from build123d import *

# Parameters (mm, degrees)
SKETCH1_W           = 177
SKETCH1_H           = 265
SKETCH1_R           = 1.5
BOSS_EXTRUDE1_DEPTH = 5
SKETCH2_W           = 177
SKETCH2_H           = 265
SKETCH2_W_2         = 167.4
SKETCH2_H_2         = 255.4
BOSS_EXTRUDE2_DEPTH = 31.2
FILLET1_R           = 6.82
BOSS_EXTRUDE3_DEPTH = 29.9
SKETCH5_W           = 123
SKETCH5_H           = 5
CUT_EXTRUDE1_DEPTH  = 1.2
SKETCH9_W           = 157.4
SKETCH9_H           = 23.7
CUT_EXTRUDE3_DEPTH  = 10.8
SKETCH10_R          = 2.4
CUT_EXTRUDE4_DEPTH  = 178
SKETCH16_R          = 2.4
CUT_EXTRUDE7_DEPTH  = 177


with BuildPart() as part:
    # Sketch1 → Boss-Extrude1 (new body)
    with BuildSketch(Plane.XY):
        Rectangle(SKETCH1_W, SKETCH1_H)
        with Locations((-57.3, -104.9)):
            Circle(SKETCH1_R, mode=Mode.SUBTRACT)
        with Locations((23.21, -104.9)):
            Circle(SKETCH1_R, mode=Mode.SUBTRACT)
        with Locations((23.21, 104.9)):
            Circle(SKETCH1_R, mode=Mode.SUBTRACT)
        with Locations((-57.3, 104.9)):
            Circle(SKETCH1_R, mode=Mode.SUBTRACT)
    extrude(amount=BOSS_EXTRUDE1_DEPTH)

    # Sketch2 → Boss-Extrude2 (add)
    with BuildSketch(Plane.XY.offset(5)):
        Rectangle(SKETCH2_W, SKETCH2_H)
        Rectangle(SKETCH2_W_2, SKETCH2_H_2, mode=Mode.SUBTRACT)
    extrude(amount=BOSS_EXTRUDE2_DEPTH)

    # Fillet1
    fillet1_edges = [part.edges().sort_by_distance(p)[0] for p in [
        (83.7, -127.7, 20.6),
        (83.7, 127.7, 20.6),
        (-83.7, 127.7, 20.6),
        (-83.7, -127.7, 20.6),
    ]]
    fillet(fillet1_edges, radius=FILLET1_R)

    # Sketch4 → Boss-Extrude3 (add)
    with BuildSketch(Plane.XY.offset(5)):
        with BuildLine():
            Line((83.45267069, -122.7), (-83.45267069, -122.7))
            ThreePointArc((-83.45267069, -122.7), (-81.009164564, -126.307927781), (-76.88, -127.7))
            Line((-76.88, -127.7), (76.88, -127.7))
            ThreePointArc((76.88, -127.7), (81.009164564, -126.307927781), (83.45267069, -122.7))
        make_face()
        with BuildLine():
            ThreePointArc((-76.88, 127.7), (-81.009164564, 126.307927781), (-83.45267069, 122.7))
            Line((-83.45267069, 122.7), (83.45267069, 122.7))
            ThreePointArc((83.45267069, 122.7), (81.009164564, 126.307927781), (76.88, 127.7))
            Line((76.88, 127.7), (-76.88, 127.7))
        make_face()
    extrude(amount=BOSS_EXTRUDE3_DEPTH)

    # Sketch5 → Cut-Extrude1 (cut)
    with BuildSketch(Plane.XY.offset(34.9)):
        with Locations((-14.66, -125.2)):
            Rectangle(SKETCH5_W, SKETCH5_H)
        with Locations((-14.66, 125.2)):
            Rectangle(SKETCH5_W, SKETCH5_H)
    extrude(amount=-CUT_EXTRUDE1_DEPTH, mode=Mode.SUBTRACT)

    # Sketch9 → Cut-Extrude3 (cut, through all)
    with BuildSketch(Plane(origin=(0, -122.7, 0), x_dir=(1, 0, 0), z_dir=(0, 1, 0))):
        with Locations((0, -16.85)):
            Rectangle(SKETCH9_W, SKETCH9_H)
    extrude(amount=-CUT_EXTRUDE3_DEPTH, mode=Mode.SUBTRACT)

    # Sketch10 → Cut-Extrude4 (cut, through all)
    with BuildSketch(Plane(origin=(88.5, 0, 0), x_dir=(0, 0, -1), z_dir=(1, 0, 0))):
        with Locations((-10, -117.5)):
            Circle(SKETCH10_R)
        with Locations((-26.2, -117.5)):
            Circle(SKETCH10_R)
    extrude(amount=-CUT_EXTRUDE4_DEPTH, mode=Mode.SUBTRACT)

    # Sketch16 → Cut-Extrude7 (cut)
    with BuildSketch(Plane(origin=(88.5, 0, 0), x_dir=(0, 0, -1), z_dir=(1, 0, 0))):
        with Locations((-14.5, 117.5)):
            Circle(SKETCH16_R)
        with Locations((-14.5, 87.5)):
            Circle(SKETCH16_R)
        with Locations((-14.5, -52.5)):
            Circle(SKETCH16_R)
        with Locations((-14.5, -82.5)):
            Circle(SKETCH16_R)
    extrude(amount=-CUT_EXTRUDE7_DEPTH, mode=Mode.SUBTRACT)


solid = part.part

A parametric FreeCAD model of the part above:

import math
import FreeCAD as App
import Part
import Sketcher
from FreeCAD import Vector


def edges_at(feature, points):
    """Names of the edges that pass closest to the given points."""
    edges = feature.Shape.Edges
    near = lambda p: min(range(len(edges)), key=lambda i: edges[i].distToShape(Part.Vertex(*p))[0])
    return sorted({f"Edge{near(p) + 1}" for p in points})


def add_polygon(sketch, points):
    """Adds a closed chain of lines whose ends are joined by coincident constraints."""
    first, n = sketch.GeometryCount, len(points)
    for a, b in zip(points, points[1:] + points[:1]):
        sketch.addGeometry(Part.LineSegment(App.Vector(*a, 0), App.Vector(*b, 0)), False)
    for i in range(n):
        sketch.addConstraint(Sketcher.Constraint("Coincident", first + i, 2, first + (i + 1) % n, 1))

doc = App.newDocument("Part")
body = doc.addObject("PartDesign::Body", "Body")

# Sketch on XY plane
sketch1 = body.newObject("Sketcher::SketchObject", "Sketch")
sketch1.AttachmentSupport = (doc.getObject("XY_Plane"), [""])
sketch1.MapMode = "FlatFace"
add_polygon(sketch1, [(-88.5, 132.5), (-88.5, -132.5), (88.5, -132.5), (88.5, 132.5)])  # lines 0-3
sketch1.addGeometry(Part.Circle(Vector(-57.3, -104.9, 0), Vector(0, 0, 1), 1.5), False)  # 4
sketch1.addGeometry(Part.Circle(Vector(23.2, -104.9, 0), Vector(0, 0, 1), 1.5), False)  # 5
sketch1.addGeometry(Part.Circle(Vector(-57.3, 104.9, 0), Vector(0, 0, 1), 1.5), False)  # 6
sketch1.addGeometry(Part.Circle(Vector(23.2, 104.9, 0), Vector(0, 0, 1), 1.5), False)  # 7
sketch1.addConstraint([
    Sketcher.Constraint("Vertical", 0),
    Sketcher.Constraint("Horizontal", 1),
    Sketcher.Constraint("Vertical", 2),
    Sketcher.Constraint("Horizontal", 3),
    Sketcher.Constraint("Equal", 4, 5),
    Sketcher.Constraint("Equal", 5, 6),
    Sketcher.Constraint("Equal", 6, 7),
    Sketcher.Constraint("Symmetric", 0, 2, 2, 2, -1, 1),
    Sketcher.Constraint("Symmetric", 4, 3, 6, 3, -1),
    Sketcher.Constraint("Symmetric", 5, 3, 7, 3, -1),
    Sketcher.Constraint("Horizontal", 4, 3, 5, 3),
    Sketcher.Constraint("Diameter", 4, 3.0),
    Sketcher.Constraint("DistanceX", 1, 1, 1, 2, 177.0),
    Sketcher.Constraint("DistanceY", 0, 2, 0, 1, 265.0),
    Sketcher.Constraint("DistanceX", 4, 3, -1, 1, 57.3),
    Sketcher.Constraint("DistanceY", 4, 3, -1, 1, 104.9),
    Sketcher.Constraint("DistanceX", -1, 1, 5, 3, 23.21),
])
pad1 = body.newObject("PartDesign::Pad", "Pad")
pad1.Profile = sketch1
pad1.Length = 5

# Sketch on XY plane
sketch2 = body.newObject("Sketcher::SketchObject", "Sketch001")
sketch2.AttachmentSupport = (doc.getObject("XY_Plane"), [""])
sketch2.MapMode = "FlatFace"
sketch2.AttachmentOffset = App.Placement(Vector(0, 0, 5), App.Rotation())
add_polygon(sketch2, [(-88, 132), (-88, -132), (88, -132), (88, 132)])  # lines 0-3
add_polygon(sketch2, [(84, -128), (-84, -128), (-84, 128), (84, 128)])  # lines 4-7
sketch2.addConstraint([
    Sketcher.Constraint("Vertical", 0),
    Sketcher.Constraint("Horizontal", 1),
    Sketcher.Constraint("Vertical", 2),
    Sketcher.Constraint("Horizontal", 3),
    Sketcher.Constraint("Horizontal", 4),
    Sketcher.Constraint("Vertical", 5),
    Sketcher.Constraint("Horizontal", 6),
    Sketcher.Constraint("Vertical", 7),
    Sketcher.Constraint("Symmetric", 0, 2, 2, 2, -1, 1),
    Sketcher.Constraint("Symmetric", 4, 2, 6, 2, -1, 1),
    Sketcher.Constraint("DistanceX", 1, 1, 1, 2, 177.0),
    Sketcher.Constraint("DistanceY", 0, 2, 0, 1, 265.0),
    Sketcher.Constraint("DistanceX", 4, 2, 4, 1, 167.4),
    Sketcher.Constraint("DistanceY", 5, 1, 5, 2, 255.4),
])
pad2 = body.newObject("PartDesign::Pad", "Pad001")
pad2.Profile = sketch2
pad2.Length = 31.2
doc.recompute()

fillet = body.newObject("PartDesign::Fillet", "Fillet")
fillet.Base = (pad2, edges_at(pad2, [
    (83.7, -127.7, 20.6),
    (83.7, 127.7, 20.6),
    (-83.7, 127.7, 20.6),
    (-83.7, -127.7, 20.6),
]))
fillet.Radius = 6.82

# Sketch on XY plane
sketch3 = body.newObject("Sketcher::SketchObject", "Sketch002")
sketch3.AttachmentSupport = (doc.getObject("XY_Plane"), [""])
sketch3.MapMode = "FlatFace"
sketch3.AttachmentOffset = App.Placement(Vector(0, 0, 5), App.Rotation())
sketch3.addGeometry([
    Part.LineSegment(Vector(83, -123, 0), Vector(-83, -123, 0)),  # 0
    Part.ArcOfCircle(Part.Circle(Vector(-77, -121, 0), Vector(0, 0, 1), 7), math.radians(-165), math.radians(-90)),  # 1
    Part.LineSegment(Vector(-77, -128, 0), Vector(77, -128, 0)),  # 2
    Part.ArcOfCircle(Part.Circle(Vector(77, -121, 0), Vector(0, 0, 1), 7), math.radians(-90), math.radians(-15)),  # 3
    Part.ArcOfCircle(Part.Circle(Vector(-77, 121, 0), Vector(0, 0, 1), 7), math.radians(90), math.radians(165)),  # 4
    Part.LineSegment(Vector(-83, 123, 0), Vector(83, 123, 0)),  # 5
    Part.ArcOfCircle(Part.Circle(Vector(77, 121, 0), Vector(0, 0, 1), 7), math.radians(15), math.radians(90)),  # 6
    Part.LineSegment(Vector(77, 128, 0), Vector(-77, 128, 0)),  # 7
], False)
sketch3.addConstraint([
    Sketcher.Constraint("Coincident", 0, 2, 1, 1),
    Sketcher.Constraint("Tangent", 1, 2, 2, 1),
    Sketcher.Constraint("Tangent", 2, 2, 3, 1),
    Sketcher.Constraint("Coincident", 3, 2, 0, 1),
    Sketcher.Constraint("Coincident", 4, 2, 5, 1),
    Sketcher.Constraint("Coincident", 5, 2, 6, 1),
    Sketcher.Constraint("Tangent", 6, 2, 7, 1),
    Sketcher.Constraint("Tangent", 7, 2, 4, 1),
    Sketcher.Constraint("Horizontal", 0),
    Sketcher.Constraint("Horizontal", 2),
    Sketcher.Constraint("Horizontal", 5),
    Sketcher.Constraint("Horizontal", 7),
    Sketcher.Constraint("Equal", 1, 3),
    Sketcher.Constraint("Equal", 3, 4),
    Sketcher.Constraint("Equal", 4, 6),
    Sketcher.Constraint("Symmetric", 3, 3, 4, 3, -1, 1),
    Sketcher.Constraint("Symmetric", 0, 2, 5, 2, -1, 1),
    Sketcher.Constraint("Vertical", 1, 3, 4, 3),
    Sketcher.Constraint("Radius", 1, 6.82),
    Sketcher.Constraint("DistanceY", 1, 2, 0, 2, 5.0),
    Sketcher.Constraint("DistanceX", 2, 1, 2, 2, 153.76),
    Sketcher.Constraint("DistanceY", 0, 2, -1, 1, 122.7),
])
pad3 = body.newObject("PartDesign::Pad", "Pad002")
pad3.Profile = sketch3
pad3.Length = 29.9

# Sketch on XY plane
sketch4 = body.newObject("Sketcher::SketchObject", "Sketch003")
sketch4.AttachmentSupport = (doc.getObject("XY_Plane"), [""])
sketch4.MapMode = "FlatFace"
sketch4.AttachmentOffset = App.Placement(Vector(0, 0, 34.9), App.Rotation())
add_polygon(sketch4, [(-76, -123), (-76, -128), (47, -128), (47, -123)])  # lines 0-3
add_polygon(sketch4, [(-76, 128), (-76, 123), (47, 123), (47, 128)])  # lines 4-7
sketch4.addConstraint([
    Sketcher.Constraint("Vertical", 0),
    Sketcher.Constraint("Horizontal", 1),
    Sketcher.Constraint("Vertical", 2),
    Sketcher.Constraint("Horizontal", 3),
    Sketcher.Constraint("Vertical", 4),
    Sketcher.Constraint("Horizontal", 5),
    Sketcher.Constraint("Vertical", 6),
    Sketcher.Constraint("Horizontal", 7),
    Sketcher.Constraint("Symmetric", 3, 2, 4, 2, -1),
    Sketcher.Constraint("Symmetric", 1, 2, 6, 2, -1),
    Sketcher.Constraint("DistanceX", 1, 1, 1, 2, 123.0),
    Sketcher.Constraint("DistanceY", 0, 2, 0, 1, 5.0),
    Sketcher.Constraint("DistanceY", 0, 2, -1, 1, 127.7),
    Sketcher.Constraint("DistanceX", 0, 2, -1, 1, 76.16),
])
pocket1 = body.newObject("PartDesign::Pocket", "Pocket")
pocket1.Profile = sketch4
pocket1.Length = 1.2

# Sketch on XZ plane
sketch5 = body.newObject("Sketcher::SketchObject", "Sketch004")
sketch5.AttachmentSupport = (doc.getObject("XZ_Plane"), [""])
sketch5.MapMode = "FlatFace"
sketch5.AttachmentOffset = App.Placement(Vector(0, 0, 122.7), App.Rotation())
add_polygon(sketch5, [(-79, 5), (-79, 29), (79, 29), (79, 5)])  # lines 0-3
sketch5.addConstraint([
    Sketcher.Constraint("Vertical", 0),
    Sketcher.Constraint("Horizontal", 1),
    Sketcher.Constraint("Vertical", 2),
    Sketcher.Constraint("Horizontal", 3),
    Sketcher.Constraint("DistanceX", 1, 1, 1, 2, 157.4),
    Sketcher.Constraint("DistanceY", 0, 1, 0, 2, 23.7),
    Sketcher.Constraint("DistanceY", -1, 1, 2, 2, 5.0),
    Sketcher.Constraint("DistanceX", 0, 2, -1, 1, 78.7),
])
pocket2 = body.newObject("PartDesign::Pocket", "Pocket001")
pocket2.Profile = sketch5
pocket2.Type = "ThroughAll"
pocket2.Reversed = True

# Sketch on YZ plane
sketch6 = body.newObject("Sketcher::SketchObject", "Sketch005")
sketch6.AttachmentSupport = (doc.getObject("YZ_Plane"), [""])
sketch6.MapMode = "FlatFace"
sketch6.AttachmentOffset = App.Placement(Vector(0, 0, 88.5), App.Rotation())
sketch6.addGeometry([
    Part.Circle(Vector(-117.5, 10, 0), Vector(0, 0, 1), 2.4),
    Part.Circle(Vector(-117.5, 26.2, 0), Vector(0, 0, 1), 2.4),
], False)
sketch6.addConstraint([
    Sketcher.Constraint("Equal", 0, 1),
    Sketcher.Constraint("Vertical", 0, 3, 1, 3),
    Sketcher.Constraint("Diameter", 0, 4.8),
    Sketcher.Constraint("DistanceY", -1, 1, 0, 3, 10.0),
    Sketcher.Constraint("DistanceX", 0, 3, -1, 1, 117.5),
    Sketcher.Constraint("DistanceY", -1, 1, 1, 3, 26.2),
])
pocket3 = body.newObject("PartDesign::Pocket", "Pocket002")
pocket3.Profile = sketch6
pocket3.Type = "ThroughAll"

# Sketch on YZ plane
sketch7 = body.newObject("Sketcher::SketchObject", "Sketch006")
sketch7.AttachmentSupport = (doc.getObject("YZ_Plane"), [""])
sketch7.MapMode = "FlatFace"
sketch7.AttachmentOffset = App.Placement(Vector(0, 0, 88.5), App.Rotation())
sketch7.addGeometry([
    Part.Circle(Vector(117.5, 14.5, 0), Vector(0, 0, 1), 2.4),
    Part.Circle(Vector(87.5, 14.5, 0), Vector(0, 0, 1), 2.4),
    Part.Circle(Vector(-52.5, 14.5, 0), Vector(0, 0, 1), 2.4),
    Part.Circle(Vector(-82.5, 14.5, 0), Vector(0, 0, 1), 2.4),
], False)
sketch7.addConstraint([
    Sketcher.Constraint("Equal", 0, 1),
    Sketcher.Constraint("Equal", 1, 2),
    Sketcher.Constraint("Equal", 2, 3),
    Sketcher.Constraint("Horizontal", 0, 3, 1, 3),
    Sketcher.Constraint("Horizontal", 1, 3, 2, 3),
    Sketcher.Constraint("Horizontal", 2, 3, 3, 3),
    Sketcher.Constraint("Diameter", 0, 4.8),
    Sketcher.Constraint("DistanceX", 1, 3, 0, 3, 30.0),
    Sketcher.Constraint("DistanceX", 2, 3, 1, 3, 140.0),
    Sketcher.Constraint("DistanceX", 3, 3, 2, 3, 30.0),
    Sketcher.Constraint("DistanceX", -1, 1, 0, 3, 117.5),
    Sketcher.Constraint("DistanceY", -1, 1, 0, 3, 14.5),
])
pocket4 = body.newObject("PartDesign::Pocket", "Pocket003")
pocket4.Profile = sketch7
pocket4.Length = 177

doc.recompute()
